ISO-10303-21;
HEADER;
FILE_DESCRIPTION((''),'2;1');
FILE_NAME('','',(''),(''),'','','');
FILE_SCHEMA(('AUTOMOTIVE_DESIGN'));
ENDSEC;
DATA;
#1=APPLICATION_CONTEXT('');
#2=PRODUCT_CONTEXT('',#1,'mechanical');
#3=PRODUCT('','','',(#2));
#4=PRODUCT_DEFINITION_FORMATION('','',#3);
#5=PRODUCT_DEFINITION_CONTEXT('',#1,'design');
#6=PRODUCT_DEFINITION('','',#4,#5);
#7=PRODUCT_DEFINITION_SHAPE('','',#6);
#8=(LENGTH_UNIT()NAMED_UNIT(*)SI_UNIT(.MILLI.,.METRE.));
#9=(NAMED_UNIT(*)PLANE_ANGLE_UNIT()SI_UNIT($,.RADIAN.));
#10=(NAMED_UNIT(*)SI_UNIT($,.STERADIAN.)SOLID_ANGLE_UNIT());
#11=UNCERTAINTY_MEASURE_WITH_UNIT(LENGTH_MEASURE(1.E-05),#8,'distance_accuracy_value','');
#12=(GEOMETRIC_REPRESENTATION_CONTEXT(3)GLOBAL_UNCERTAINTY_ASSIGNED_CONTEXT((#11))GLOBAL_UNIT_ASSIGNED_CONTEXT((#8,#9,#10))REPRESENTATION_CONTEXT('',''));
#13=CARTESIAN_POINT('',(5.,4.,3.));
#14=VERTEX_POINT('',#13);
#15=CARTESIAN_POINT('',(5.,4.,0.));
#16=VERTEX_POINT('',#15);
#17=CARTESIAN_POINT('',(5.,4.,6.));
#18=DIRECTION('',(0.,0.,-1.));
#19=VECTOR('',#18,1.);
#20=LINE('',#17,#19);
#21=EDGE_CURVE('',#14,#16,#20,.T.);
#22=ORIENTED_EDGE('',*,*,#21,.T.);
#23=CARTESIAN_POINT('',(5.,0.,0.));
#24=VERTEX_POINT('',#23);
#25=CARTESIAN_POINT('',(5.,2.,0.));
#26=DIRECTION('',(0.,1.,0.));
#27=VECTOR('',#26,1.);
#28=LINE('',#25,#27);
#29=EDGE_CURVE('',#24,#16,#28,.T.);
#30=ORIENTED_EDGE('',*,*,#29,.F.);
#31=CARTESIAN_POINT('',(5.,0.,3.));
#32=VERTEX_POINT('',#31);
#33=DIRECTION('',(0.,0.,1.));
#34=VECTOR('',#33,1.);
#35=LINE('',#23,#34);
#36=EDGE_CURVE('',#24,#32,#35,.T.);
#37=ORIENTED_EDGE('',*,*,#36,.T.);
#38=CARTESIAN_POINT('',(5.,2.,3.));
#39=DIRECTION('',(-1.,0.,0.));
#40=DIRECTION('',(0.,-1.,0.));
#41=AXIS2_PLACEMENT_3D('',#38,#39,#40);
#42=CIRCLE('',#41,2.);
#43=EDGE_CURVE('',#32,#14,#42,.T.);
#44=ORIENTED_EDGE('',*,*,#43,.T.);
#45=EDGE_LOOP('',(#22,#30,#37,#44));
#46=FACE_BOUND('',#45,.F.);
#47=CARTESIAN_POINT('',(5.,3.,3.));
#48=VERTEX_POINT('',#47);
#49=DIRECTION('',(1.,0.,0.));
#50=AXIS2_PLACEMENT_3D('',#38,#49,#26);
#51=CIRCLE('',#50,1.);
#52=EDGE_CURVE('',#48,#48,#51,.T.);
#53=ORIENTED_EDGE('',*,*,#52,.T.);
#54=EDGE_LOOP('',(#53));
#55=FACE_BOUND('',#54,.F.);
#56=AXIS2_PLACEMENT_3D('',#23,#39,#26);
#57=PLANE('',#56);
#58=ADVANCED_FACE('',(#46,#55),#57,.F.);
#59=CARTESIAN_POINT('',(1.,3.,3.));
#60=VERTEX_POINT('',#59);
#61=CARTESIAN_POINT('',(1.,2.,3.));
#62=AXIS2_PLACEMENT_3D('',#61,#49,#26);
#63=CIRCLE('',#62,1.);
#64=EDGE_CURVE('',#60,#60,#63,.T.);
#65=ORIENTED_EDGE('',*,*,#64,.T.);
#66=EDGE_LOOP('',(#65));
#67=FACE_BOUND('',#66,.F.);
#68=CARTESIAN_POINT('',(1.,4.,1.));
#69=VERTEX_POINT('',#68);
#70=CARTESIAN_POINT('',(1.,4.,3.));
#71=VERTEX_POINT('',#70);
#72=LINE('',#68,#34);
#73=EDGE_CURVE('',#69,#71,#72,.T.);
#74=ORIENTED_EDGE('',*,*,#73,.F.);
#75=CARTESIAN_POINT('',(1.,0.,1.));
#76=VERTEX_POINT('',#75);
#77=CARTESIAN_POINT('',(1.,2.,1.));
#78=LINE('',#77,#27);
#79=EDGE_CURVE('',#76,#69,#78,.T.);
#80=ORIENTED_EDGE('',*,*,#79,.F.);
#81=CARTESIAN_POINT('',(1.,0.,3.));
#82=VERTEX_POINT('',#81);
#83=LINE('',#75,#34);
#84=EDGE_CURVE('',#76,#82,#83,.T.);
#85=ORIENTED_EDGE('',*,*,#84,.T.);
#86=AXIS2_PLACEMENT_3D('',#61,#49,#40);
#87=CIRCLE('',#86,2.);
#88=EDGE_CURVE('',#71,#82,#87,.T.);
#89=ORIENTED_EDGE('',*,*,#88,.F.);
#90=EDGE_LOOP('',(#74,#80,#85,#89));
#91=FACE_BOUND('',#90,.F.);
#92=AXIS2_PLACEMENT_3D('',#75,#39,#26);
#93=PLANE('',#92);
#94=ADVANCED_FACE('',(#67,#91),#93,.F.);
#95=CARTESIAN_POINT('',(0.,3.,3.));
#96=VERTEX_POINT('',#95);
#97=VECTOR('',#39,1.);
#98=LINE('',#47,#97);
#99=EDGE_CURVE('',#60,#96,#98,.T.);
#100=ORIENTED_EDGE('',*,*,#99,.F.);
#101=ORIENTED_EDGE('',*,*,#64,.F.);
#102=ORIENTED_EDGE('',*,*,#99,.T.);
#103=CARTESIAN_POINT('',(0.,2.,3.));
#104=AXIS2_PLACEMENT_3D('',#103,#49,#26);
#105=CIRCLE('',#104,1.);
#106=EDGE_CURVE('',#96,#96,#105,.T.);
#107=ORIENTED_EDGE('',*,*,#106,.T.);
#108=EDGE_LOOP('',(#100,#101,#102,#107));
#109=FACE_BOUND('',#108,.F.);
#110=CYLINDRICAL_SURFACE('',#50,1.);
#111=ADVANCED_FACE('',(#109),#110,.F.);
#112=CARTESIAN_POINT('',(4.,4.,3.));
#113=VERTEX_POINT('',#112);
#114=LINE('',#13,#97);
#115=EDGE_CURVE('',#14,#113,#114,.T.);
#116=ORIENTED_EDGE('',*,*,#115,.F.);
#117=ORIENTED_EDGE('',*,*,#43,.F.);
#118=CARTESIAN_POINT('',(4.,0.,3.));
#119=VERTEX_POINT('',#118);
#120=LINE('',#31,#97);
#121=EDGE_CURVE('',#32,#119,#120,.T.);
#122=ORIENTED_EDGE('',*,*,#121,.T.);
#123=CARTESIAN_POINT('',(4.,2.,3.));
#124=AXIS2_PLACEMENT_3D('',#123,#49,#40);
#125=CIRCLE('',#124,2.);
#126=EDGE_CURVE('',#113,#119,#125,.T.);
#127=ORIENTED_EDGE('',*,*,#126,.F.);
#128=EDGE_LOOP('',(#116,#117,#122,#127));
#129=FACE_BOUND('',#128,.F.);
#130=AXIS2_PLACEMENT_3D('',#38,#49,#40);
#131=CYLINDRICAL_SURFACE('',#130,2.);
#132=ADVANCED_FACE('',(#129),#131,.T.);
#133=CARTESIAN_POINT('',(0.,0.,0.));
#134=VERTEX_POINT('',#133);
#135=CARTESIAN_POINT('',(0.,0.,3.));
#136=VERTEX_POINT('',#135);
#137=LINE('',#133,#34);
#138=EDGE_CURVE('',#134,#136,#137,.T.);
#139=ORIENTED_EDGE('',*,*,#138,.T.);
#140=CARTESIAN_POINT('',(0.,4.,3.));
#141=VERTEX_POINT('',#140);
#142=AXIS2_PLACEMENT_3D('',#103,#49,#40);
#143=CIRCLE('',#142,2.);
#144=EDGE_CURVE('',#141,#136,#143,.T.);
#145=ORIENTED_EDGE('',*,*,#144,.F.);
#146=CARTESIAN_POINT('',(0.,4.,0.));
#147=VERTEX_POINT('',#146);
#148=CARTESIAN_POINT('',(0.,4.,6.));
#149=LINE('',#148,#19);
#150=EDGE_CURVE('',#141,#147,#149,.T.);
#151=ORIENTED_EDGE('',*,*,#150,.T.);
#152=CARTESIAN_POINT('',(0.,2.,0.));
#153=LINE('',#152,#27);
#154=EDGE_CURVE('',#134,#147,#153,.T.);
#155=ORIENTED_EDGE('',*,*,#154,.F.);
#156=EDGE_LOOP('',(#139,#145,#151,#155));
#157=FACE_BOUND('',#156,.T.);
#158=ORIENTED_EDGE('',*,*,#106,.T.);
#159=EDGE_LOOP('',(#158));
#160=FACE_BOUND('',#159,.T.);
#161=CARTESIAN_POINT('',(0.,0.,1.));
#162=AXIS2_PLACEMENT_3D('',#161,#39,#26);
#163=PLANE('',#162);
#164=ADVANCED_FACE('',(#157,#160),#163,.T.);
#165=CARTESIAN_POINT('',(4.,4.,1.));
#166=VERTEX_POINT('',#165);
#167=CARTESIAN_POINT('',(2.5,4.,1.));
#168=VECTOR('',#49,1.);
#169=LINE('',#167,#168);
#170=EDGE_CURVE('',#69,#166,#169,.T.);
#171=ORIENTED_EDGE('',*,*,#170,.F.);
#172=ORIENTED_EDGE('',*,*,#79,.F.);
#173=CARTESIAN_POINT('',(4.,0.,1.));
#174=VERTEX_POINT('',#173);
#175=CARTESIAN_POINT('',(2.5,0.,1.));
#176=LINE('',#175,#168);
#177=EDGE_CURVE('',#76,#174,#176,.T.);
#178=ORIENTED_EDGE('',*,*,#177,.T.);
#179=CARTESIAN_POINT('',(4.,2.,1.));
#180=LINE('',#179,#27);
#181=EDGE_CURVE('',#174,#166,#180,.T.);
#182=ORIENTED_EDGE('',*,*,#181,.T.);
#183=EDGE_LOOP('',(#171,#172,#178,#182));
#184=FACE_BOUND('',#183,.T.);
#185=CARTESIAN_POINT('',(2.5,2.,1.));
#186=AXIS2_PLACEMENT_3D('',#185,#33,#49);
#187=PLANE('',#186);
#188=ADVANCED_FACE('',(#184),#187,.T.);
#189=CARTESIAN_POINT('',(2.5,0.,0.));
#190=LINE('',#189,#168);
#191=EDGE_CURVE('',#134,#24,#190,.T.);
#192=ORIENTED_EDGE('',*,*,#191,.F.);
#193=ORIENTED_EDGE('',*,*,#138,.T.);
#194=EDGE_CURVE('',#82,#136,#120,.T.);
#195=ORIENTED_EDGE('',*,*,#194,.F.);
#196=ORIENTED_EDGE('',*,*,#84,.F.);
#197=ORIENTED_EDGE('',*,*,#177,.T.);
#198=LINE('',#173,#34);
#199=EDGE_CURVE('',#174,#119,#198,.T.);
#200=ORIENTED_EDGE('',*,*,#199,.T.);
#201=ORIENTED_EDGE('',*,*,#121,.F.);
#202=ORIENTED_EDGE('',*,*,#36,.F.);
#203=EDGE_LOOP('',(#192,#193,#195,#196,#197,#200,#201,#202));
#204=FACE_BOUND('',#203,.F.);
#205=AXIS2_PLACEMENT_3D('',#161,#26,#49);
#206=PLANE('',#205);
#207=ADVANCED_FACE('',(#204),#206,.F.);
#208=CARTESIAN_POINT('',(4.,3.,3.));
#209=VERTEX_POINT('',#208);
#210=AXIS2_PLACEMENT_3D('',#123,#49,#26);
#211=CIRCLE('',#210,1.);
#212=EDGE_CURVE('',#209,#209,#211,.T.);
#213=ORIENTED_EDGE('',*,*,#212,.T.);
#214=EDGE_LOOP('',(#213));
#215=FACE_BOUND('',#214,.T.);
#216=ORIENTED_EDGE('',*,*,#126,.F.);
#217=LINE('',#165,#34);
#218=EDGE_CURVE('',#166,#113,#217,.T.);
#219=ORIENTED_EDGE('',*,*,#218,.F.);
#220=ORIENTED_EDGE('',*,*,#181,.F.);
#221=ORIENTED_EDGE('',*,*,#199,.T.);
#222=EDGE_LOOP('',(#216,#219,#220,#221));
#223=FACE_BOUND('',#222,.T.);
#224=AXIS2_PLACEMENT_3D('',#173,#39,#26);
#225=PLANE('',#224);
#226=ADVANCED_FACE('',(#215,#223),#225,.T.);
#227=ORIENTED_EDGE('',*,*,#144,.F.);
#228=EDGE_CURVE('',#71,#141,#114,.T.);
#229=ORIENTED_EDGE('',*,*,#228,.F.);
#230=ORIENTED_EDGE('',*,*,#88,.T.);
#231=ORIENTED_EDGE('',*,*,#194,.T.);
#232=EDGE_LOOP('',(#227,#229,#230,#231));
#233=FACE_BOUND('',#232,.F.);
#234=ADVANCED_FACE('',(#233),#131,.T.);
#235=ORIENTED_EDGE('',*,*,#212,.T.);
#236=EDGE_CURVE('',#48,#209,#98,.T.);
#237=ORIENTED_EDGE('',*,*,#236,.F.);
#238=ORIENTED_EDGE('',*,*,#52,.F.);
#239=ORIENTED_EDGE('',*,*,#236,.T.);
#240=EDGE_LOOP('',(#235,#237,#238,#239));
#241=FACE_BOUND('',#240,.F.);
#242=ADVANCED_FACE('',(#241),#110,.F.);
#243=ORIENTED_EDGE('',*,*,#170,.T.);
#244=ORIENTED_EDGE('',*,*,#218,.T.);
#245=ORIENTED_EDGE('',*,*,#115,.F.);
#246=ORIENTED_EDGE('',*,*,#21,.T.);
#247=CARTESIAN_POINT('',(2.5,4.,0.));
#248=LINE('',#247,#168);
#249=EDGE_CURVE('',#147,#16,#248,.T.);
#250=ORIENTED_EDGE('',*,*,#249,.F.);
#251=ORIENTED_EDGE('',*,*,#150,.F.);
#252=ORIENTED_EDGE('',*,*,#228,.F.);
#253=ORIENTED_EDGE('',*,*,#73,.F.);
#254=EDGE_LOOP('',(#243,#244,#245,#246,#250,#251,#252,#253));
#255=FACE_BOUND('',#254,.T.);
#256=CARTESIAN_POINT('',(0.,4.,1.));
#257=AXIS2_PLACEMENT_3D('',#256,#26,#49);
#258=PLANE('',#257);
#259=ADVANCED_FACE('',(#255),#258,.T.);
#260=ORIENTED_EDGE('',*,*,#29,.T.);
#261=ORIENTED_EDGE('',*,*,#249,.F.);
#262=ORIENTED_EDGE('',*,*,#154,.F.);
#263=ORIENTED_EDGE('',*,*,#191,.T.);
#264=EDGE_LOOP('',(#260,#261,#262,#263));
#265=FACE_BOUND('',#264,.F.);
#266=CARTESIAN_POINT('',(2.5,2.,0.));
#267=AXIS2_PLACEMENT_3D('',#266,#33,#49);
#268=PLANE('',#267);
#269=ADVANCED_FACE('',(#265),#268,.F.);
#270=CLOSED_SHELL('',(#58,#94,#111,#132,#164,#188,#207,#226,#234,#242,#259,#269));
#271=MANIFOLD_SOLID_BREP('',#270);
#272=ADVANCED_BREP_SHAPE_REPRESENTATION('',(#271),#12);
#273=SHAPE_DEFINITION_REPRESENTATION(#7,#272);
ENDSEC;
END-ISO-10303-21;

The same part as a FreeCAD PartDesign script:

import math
import FreeCAD as App
import Part
import Sketcher
Q = App.Units.Quantity

doc = App.newDocument("Part")
body = doc.addObject("PartDesign::Body", "Body")

# Sketch on XY plane
sketch1 = doc.addObject("Sketcher::SketchObject", "Sketch")
body.addObject(sketch1)
sketch1.AttachmentSupport = (doc.XY_Plane, [""])
sketch1.MapMode = "FlatFace"
sketch1.addGeometry([
    Part.LineSegment(App.Vector(0, 4, 0), App.Vector(0, 0, 0)),
    Part.LineSegment(App.Vector(0, 0, 0), App.Vector(5, 0, 0)),
    Part.LineSegment(App.Vector(5, 0, 0), App.Vector(5, 4, 0)),
    Part.LineSegment(App.Vector(5, 4, 0), App.Vector(0, 4, 0)),
], False)
sketch1.addConstraint([
    Sketcher.Constraint("Coincident", 0, 2, 1, 1),
    Sketcher.Constraint("Coincident", 1, 2, 2, 1),
    Sketcher.Constraint("Coincident", 2, 2, 3, 1),
    Sketcher.Constraint("Coincident", 3, 2, 0, 1),
    Sketcher.Constraint("Vertical", 0),
    Sketcher.Constraint("Horizontal", 1),
    Sketcher.Constraint("Vertical", 2),
    Sketcher.Constraint("Horizontal", 3),
    Sketcher.Constraint("Coincident", 0, 2, -1, 1),
    Sketcher.Constraint("DistanceX", 1, 1, 1, 2, Q("5 mm")),
    Sketcher.Constraint("DistanceY", 0, 2, 0, 1, Q("4 mm")),
])
pad1 = doc.addObject("PartDesign::Pad", "Pad")
body.addObject(pad1)
pad1.Profile = sketch1
pad1.Length = 1

# Sketch on XY plane
sketch2 = doc.addObject("Sketcher::SketchObject", "Sketch001")
body.addObject(sketch2)
sketch2.AttachmentSupport = (doc.XY_Plane, [""])
sketch2.MapMode = "FlatFace"
sketch2.AttachmentOffset = App.Placement(App.Vector(0, 0, 1), App.Rotation())
sketch2.addGeometry([
    Part.LineSegment(App.Vector(0, 4, 0), App.Vector(0, 0, 0)),  # 0
    Part.LineSegment(App.Vector(0, 0, 0), App.Vector(1, 0, 0)),  # 1
    Part.LineSegment(App.Vector(1, 0, 0), App.Vector(1, 4, 0)),  # 2
    Part.LineSegment(App.Vector(1, 4, 0), App.Vector(0, 4, 0)),  # 3
    Part.LineSegment(App.Vector(4, 4, 0), App.Vector(4, 0, 0)),  # 4
    Part.LineSegment(App.Vector(4, 0, 0), App.Vector(5, 0, 0)),  # 5
    Part.LineSegment(App.Vector(5, 0, 0), App.Vector(5, 4, 0)),  # 6
    Part.LineSegment(App.Vector(5, 4, 0), App.Vector(4, 4, 0)),  # 7
], False)
sketch2.addConstraint([
    Sketcher.Constraint("Coincident", 0, 2, 1, 1),
    Sketcher.Constraint("Coincident", 1, 2, 2, 1),
    Sketcher.Constraint("Coincident", 2, 2, 3, 1),
    Sketcher.Constraint("Coincident", 3, 2, 0, 1),
    Sketcher.Constraint("Coincident", 4, 2, 5, 1),
    Sketcher.Constraint("Coincident", 5, 2, 6, 1),
    Sketcher.Constraint("Coincident", 6, 2, 7, 1),
    Sketcher.Constraint("Coincident", 7, 2, 4, 1),
    Sketcher.Constraint("Vertical", 0),
    Sketcher.Constraint("Horizontal", 1),
    Sketcher.Constraint("Vertical", 2),
    Sketcher.Constraint("Horizontal", 3),
    Sketcher.Constraint("Vertical", 4),
    Sketcher.Constraint("Horizontal", 5),
    Sketcher.Constraint("Vertical", 6),
    Sketcher.Constraint("Horizontal", 7),
    Sketcher.Constraint("Coincident", 0, 2, -1, 1),
    Sketcher.Constraint("PointOnObject", 4, 2, -1),
    Sketcher.Constraint("Horizontal", 3, 2, 6, 2),
    Sketcher.Constraint("Equal", 3, 5),
    Sketcher.Constraint("DistanceX", 1, 1, 1, 2, Q("1 mm")),
    Sketcher.Constraint("DistanceY", 0, 2, 0, 1, Q("4 mm")),
    Sketcher.Constraint("DistanceX", -1, 1, 4, 2, Q("4 mm")),
])
pad2 = doc.addObject("PartDesign::Pad", "Pad001")
body.addObject(pad2)
pad2.Profile = sketch2
pad2.Length = 5

# Sketch on YZ plane
sketch3 = doc.addObject("Sketcher::SketchObject", "Sketch002")
body.addObject(sketch3)
sketch3.AttachmentSupport = (doc.YZ_Plane, [""])
sketch3.MapMode = "FlatFace"
sketch3.AttachmentOffset = App.Placement(App.Vector(0, 0, 5), App.Rotation())
sketch3.addGeometry([
    Part.LineSegment(App.Vector(0, 6, 0), App.Vector(0, 3, 0)),
    Part.ArcOfCircle(Part.Circle(App.Vector(2, 3, 0), App.Vector(0, 0, 1), 2), math.radians(0), math.radians(180)),
    Part.LineSegment(App.Vector(4, 3, 0), App.Vector(4, 6, 0)),
    Part.LineSegment(App.Vector(4, 6, 0), App.Vector(0, 6, 0)),
], False)
sketch3.addConstraint([
    Sketcher.Constraint("Tangent", 0, 2, 1, 2),
    Sketcher.Constraint("Tangent", 1, 1, 2, 1),
    Sketcher.Constraint("Coincident", 2, 2, 3, 1),
    Sketcher.Constraint("Coincident", 3, 2, 0, 1),
    Sketcher.Constraint("Vertical", 0),
    Sketcher.Constraint("Vertical", 2),
    Sketcher.Constraint("Horizontal", 3),
    Sketcher.Constraint("PointOnObject", 0, 2, -2),
    Sketcher.Constraint("Radius", 1, Q("2 mm")),
    Sketcher.Constraint("DistanceY", 0, 2, 0, 1, Q("3 mm")),
    Sketcher.Constraint("DistanceY", -1, 1, 1, 3, Q("3 mm")),
])
pocket1 = doc.addObject("PartDesign::Pocket", "Pocket")
body.addObject(pocket1)
pocket1.Profile = sketch3
pocket1.Length = 25

# Sketch on YZ plane
sketch4 = doc.addObject("Sketcher::SketchObject", "Sketch003")
body.addObject(sketch4)
sketch4.AttachmentSupport = (doc.YZ_Plane, [""])
sketch4.MapMode = "FlatFace"
sketch4.AttachmentOffset = App.Placement(App.Vector(0, 0, 5), App.Rotation())
sketch4.addGeometry(Part.Circle(App.Vector(2, 3, 0), App.Vector(0, 0, 1), 1), False)
sketch4.addConstraint([
    Sketcher.Constraint("Diameter", 0, Q("2 mm")),
    Sketcher.Constraint("DistanceX", -1, 1, 0, 3, Q("2 mm")),
    Sketcher.Constraint("DistanceY", -1, 1, 0, 3, Q("3 mm")),
])
pocket2 = doc.addObject("PartDesign::Pocket", "Pocket001")
body.addObject(pocket2)
pocket2.Profile = sketch4
pocket2.Length = 25

doc.recompute()
